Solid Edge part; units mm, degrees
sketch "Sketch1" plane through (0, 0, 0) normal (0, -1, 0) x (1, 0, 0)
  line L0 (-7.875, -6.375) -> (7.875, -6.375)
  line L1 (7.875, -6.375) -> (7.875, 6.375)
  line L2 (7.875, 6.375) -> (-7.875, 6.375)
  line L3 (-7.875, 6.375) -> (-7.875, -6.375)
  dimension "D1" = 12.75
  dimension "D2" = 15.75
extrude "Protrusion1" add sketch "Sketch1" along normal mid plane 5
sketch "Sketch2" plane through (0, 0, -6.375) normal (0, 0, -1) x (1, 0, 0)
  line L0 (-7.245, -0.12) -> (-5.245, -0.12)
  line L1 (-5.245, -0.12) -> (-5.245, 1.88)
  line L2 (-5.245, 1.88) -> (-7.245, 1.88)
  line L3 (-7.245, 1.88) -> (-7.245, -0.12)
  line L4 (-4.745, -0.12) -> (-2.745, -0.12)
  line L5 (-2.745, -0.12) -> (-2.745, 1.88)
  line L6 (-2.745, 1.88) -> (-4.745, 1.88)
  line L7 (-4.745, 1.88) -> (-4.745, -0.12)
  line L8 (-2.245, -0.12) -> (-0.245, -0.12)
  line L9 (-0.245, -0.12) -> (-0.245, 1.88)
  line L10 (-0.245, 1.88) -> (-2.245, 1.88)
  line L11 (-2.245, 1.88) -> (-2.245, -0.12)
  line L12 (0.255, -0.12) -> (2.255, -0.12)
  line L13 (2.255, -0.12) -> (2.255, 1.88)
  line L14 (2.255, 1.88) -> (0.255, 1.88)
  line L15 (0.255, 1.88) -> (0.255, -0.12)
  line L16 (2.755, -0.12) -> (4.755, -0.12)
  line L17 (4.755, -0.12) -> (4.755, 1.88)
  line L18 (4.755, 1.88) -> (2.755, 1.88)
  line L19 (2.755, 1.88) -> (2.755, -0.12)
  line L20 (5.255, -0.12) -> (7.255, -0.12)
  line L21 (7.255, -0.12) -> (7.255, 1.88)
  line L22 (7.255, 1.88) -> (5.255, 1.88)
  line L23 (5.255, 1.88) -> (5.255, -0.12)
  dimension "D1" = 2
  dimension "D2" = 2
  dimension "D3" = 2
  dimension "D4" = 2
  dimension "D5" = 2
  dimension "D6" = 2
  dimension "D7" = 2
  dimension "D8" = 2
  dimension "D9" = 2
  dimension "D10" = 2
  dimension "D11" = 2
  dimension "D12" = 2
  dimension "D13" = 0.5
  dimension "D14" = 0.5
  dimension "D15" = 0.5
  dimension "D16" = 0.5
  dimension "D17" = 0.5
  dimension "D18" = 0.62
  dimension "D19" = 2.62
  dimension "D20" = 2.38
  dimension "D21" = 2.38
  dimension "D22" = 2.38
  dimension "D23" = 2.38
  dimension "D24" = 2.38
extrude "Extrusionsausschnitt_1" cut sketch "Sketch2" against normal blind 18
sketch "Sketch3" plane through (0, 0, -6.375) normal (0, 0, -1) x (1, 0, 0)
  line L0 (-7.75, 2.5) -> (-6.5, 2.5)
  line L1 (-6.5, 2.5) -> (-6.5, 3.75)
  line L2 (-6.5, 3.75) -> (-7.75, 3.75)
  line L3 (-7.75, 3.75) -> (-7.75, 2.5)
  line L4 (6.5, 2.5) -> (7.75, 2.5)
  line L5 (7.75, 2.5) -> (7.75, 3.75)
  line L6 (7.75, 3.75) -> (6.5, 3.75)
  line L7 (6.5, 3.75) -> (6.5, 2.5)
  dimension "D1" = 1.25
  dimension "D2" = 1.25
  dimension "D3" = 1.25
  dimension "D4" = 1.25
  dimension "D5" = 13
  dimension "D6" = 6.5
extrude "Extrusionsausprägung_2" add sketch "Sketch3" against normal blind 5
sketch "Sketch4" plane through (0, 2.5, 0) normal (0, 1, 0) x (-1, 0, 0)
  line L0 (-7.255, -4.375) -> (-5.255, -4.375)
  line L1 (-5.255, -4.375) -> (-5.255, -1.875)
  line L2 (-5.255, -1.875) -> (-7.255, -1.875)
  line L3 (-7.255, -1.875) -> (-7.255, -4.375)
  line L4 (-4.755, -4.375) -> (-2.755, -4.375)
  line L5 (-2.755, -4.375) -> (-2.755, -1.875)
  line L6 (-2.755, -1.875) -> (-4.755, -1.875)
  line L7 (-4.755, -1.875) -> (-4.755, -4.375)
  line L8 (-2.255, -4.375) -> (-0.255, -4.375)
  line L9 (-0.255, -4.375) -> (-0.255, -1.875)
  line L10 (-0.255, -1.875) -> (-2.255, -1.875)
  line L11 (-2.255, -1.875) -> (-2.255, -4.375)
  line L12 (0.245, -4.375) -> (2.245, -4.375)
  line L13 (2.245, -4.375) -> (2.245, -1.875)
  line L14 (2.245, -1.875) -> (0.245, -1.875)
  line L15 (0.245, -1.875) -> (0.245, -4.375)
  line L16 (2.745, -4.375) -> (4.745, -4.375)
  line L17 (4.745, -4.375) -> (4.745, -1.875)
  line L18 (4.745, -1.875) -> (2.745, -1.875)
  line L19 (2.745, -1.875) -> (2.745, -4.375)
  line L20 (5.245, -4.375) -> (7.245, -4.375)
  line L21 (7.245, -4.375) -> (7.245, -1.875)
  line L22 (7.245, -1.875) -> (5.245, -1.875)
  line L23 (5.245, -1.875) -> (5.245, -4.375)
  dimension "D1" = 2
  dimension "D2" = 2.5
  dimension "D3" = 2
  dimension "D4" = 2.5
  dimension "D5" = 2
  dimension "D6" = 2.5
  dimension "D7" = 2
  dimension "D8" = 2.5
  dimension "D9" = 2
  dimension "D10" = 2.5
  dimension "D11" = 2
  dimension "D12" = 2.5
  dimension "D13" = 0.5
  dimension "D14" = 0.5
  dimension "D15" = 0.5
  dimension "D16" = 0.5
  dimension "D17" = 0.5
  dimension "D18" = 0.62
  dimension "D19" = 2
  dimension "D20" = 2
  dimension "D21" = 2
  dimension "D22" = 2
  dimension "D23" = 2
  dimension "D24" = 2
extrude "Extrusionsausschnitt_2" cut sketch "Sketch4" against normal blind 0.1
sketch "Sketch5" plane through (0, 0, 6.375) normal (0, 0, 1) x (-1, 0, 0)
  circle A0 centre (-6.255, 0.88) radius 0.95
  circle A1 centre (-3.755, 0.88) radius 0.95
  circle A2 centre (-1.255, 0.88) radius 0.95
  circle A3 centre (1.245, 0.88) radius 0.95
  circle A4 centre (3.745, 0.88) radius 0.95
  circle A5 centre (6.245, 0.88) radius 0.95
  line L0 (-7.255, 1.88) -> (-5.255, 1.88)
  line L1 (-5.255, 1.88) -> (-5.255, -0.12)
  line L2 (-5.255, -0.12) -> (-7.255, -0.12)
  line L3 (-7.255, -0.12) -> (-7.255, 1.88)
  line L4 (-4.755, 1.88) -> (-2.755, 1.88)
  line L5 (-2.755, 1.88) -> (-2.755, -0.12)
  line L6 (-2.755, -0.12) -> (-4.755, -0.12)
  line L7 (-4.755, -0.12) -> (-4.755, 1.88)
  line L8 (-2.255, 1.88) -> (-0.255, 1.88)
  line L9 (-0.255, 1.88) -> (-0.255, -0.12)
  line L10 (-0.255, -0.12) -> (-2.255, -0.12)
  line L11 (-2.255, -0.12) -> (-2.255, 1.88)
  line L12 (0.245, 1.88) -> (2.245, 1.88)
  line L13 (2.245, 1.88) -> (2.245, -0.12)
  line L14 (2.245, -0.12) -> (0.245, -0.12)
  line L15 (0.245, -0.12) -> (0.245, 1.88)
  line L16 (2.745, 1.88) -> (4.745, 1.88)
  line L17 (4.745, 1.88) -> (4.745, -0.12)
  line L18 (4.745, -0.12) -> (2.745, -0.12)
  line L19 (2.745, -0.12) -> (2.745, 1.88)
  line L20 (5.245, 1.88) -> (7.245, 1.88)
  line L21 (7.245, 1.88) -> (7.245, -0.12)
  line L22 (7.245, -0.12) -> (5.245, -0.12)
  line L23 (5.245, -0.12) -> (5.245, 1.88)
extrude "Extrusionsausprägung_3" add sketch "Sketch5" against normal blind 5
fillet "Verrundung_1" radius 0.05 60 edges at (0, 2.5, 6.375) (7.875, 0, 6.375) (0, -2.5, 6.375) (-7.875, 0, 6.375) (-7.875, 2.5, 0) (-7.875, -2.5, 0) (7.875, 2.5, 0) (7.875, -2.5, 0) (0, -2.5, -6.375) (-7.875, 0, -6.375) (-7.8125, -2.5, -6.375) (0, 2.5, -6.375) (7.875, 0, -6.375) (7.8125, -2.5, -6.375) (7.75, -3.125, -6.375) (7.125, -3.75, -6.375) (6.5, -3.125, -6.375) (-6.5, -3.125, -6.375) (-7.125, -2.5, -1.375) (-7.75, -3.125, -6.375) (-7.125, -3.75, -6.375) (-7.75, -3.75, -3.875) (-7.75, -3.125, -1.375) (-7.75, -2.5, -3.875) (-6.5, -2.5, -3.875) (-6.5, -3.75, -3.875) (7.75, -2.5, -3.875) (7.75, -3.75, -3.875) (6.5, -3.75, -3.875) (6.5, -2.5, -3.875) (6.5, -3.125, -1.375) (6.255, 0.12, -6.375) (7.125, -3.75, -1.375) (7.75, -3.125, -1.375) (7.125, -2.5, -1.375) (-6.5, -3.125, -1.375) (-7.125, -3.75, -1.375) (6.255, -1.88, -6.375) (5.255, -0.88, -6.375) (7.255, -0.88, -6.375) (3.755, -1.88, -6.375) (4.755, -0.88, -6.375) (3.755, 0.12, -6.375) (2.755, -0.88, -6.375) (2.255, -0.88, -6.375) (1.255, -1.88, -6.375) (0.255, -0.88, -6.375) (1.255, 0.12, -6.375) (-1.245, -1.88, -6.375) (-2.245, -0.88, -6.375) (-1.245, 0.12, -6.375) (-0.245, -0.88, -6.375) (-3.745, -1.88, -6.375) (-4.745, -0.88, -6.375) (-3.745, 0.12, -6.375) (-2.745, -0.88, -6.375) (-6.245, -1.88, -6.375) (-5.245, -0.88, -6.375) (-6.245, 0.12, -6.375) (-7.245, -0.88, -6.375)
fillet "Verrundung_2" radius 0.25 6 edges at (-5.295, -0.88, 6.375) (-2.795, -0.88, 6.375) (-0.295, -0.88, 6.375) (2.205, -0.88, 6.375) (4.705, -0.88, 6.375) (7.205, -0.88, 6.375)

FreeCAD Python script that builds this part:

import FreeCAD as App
import Part
import Sketcher
from FreeCAD import Vector


def edges_at(feature, points):
    """Names of the edges that pass closest to the given points."""
    edges = feature.Shape.Edges
    near = lambda p: min(range(len(edges)), key=lambda i: edges[i].distToShape(Part.Vertex(*p))[0])
    return sorted({f"Edge{near(p) + 1}" for p in points})

doc = App.newDocument("Part")
body = doc.addObject("PartDesign::Body", "Body")

# Sketch on XZ plane
sketch1 = body.newObject("Sketcher::SketchObject", "Sketch")
sketch1.AttachmentSupport = (doc.getObject("XZ_Plane"), [""])
sketch1.MapMode = "FlatFace"
sketch1.addGeometry([
    Part.LineSegment(Vector(-7.875, 6.375, 0), Vector(-7.875, -6.375, 0)),
    Part.LineSegment(Vector(-7.875, -6.375, 0), Vector(7.875, -6.375, 0)),
    Part.LineSegment(Vector(7.875, -6.375, 0), Vector(7.875, 6.375, 0)),
    Part.LineSegment(Vector(7.875, 6.375, 0), Vector(-7.875, 6.375, 0)),
], False)
sketch1.addConstraint([
    Sketcher.Constraint("Coincident", 0, 2, 1, 1),
    Sketcher.Constraint("Coincident", 1, 2, 2, 1),
    Sketcher.Constraint("Coincident", 2, 2, 3, 1),
    Sketcher.Constraint("Coincident", 3, 2, 0, 1),
    Sketcher.Constraint("Vertical", 0),
    Sketcher.Constraint("Horizontal", 1),
    Sketcher.Constraint("Vertical", 2),
    Sketcher.Constraint("Horizontal", 3),
    Sketcher.Constraint("Symmetric", 0, 2, 2, 2, -1, 1),
    Sketcher.Constraint("DistanceX", 0, 2, -1, 1, 7.875),
    Sketcher.Constraint("DistanceY", 0, 2, 0, 1, 12.75),
])
pad1 = body.newObject("PartDesign::Pad", "Pad")
pad1.Profile = sketch1
pad1.Length = 5
pad1.Midplane = True

# Sketch on XY plane
sketch2 = body.newObject("Sketcher::SketchObject", "Sketch001")
sketch2.AttachmentSupport = (doc.getObject("XY_Plane"), [""])
sketch2.MapMode = "FlatFace"
sketch2.AttachmentOffset = App.Placement(Vector(0, 0, -6.375), App.Rotation())
sketch2.addGeometry([
    Part.LineSegment(Vector(-7.245, -1.88, 0), Vector(-7.245, 0.12, 0)),  # 0
    Part.LineSegment(Vector(-7.245, 0.12, 0), Vector(-5.245, 0.12, 0)),  # 1
    Part.LineSegment(Vector(-5.245, 0.12, 0), Vector(-5.245, -1.88, 0)),  # 2
    Part.LineSegment(Vector(-5.245, -1.88, 0), Vector(-7.245, -1.88, 0)),  # 3
    Part.LineSegment(Vector(-4.745, -1.88, 0), Vector(-4.745, 0.12, 0)),  # 4
    Part.LineSegment(Vector(-4.745, 0.12, 0), Vector(-2.745, 0.12, 0)),  # 5
    Part.LineSegment(Vector(-2.745, 0.12, 0), Vector(-2.745, -1.88, 0)),  # 6
    Part.LineSegment(Vector(-2.745, -1.88, 0), Vector(-4.745, -1.88, 0)),  # 7
    Part.LineSegment(Vector(-2.245, -1.88, 0), Vector(-2.245, 0.12, 0)),  # 8
    Part.LineSegment(Vector(-2.245, 0.12, 0), Vector(-0.245, 0.12, 0)),  # 9
    Part.LineSegment(Vector(-0.245, 0.12, 0), Vector(-0.245, -1.88, 0)),  # 10
    Part.LineSegment(Vector(-0.245, -1.88, 0), Vector(-2.245, -1.88, 0)),  # 11
    Part.LineSegment(Vector(0.255, -1.88, 0), Vector(0.255, 0.12, 0)),  # 12
    Part.LineSegment(Vector(0.255, 0.12, 0), Vector(2.255, 0.12, 0)),  # 13
    Part.LineSegment(Vector(2.255, 0.12, 0), Vector(2.255, -1.88, 0)),  # 14
    Part.LineSegment(Vector(2.255, -1.88, 0), Vector(0.255, -1.88, 0)),  # 15
    Part.LineSegment(Vector(2.755, -1.88, 0), Vector(2.755, 0.12, 0)),  # 16
    Part.LineSegment(Vector(2.755, 0.12, 0), Vector(4.755, 0.12, 0)),  # 17
    Part.LineSegment(Vector(4.755, 0.12, 0), Vector(4.755, -1.88, 0)),  # 18
    Part.LineSegment(Vector(4.755, -1.88, 0), Vector(2.755, -1.88, 0)),  # 19
    Part.LineSegment(Vector(5.255, -1.88, 0), Vector(5.255, 0.12, 0)),  # 20
    Part.LineSegment(Vector(5.255, 0.12, 0), Vector(7.255, 0.12, 0)),  # 21
    Part.LineSegment(Vector(7.255, 0.12, 0), Vector(7.255, -1.88, 0)),  # 22
    Part.LineSegment(Vector(7.255, -1.88, 0), Vector(5.255, -1.88, 0)),  # 23
], False)
sketch2.addConstraint([
    Sketcher.Constraint("Coincident", 0, 2, 1, 1),
    Sketcher.Constraint("Coincident", 1, 2, 2, 1),
    Sketcher.Constraint("Coincident", 2, 2, 3, 1),
    Sketcher.Constraint("Coincident", 3, 2, 0, 1),
    Sketcher.Constraint("Coincident", 4, 2, 5, 1),
    Sketcher.Constraint("Coincident", 5, 2, 6, 1),
    Sketcher.Constraint("Coincident", 6, 2, 7, 1),
    Sketcher.Constraint("Coincident", 7, 2, 4, 1),
    Sketcher.Constraint("Coincident", 8, 2, 9, 1),
    Sketcher.Constraint("Coincident", 9, 2, 10, 1),
    Sketcher.Constraint("Coincident", 10, 2, 11, 1),
    Sketcher.Constraint("Coincident", 11, 2, 8, 1),
    Sketcher.Constraint("Coincident", 12, 2, 13, 1),
    Sketcher.Constraint("Coincident", 13, 2, 14, 1),
    Sketcher.Constraint("Coincident", 14, 2, 15, 1),
    Sketcher.Constraint("Coincident", 15, 2, 12, 1),
    Sketcher.Constraint("Coincident", 16, 2, 17, 1),
    Sketcher.Constraint("Coincident", 17, 2, 18, 1),
    Sketcher.Constraint("Coincident", 18, 2, 19, 1),
    Sketcher.Constraint("Coincident", 19, 2, 16, 1),
    Sketcher.Constraint("Coincident", 20, 2, 21, 1),
    Sketcher.Constraint("Coincident", 21, 2, 22, 1),
    Sketcher.Constraint("Coincident", 22, 2, 23, 1),
    Sketcher.Constraint("Coincident", 23, 2, 20, 1),
    Sketcher.Constraint("Vertical", 0),
    Sketcher.Constraint("Horizontal", 1),
    Sketcher.Constraint("Vertical", 2),
    Sketcher.Constraint("Horizontal", 3),
    Sketcher.Constraint("Vertical", 4),
    Sketcher.Constraint("Horizontal", 5),
    Sketcher.Constraint("Vertical", 6),
    Sketcher.Constraint("Horizontal", 7),
    Sketcher.Constraint("Vertical", 8),
    Sketcher.Constraint("Horizontal", 9),
    Sketcher.Constraint("Vertical", 10),
    Sketcher.Constraint("Horizontal", 11),
    Sketcher.Constraint("Vertical", 12),
    Sketcher.Constraint("Horizontal", 13),
    Sketcher.Constraint("Vertical", 14),
    Sketcher.Constraint("Horizontal", 15),
    Sketcher.Constraint("Vertical", 16),
    Sketcher.Constraint("Horizontal", 17),
    Sketcher.Constraint("Vertical", 18),
    Sketcher.Constraint("Horizontal", 19),
    Sketcher.Constraint("Vertical", 20),
    Sketcher.Constraint("Horizontal", 21),
    Sketcher.Constraint("Vertical", 22),
    Sketcher.Constraint("Horizontal", 23),
    Sketcher.Constraint("Horizontal", 1, 2, 4, 2),
    Sketcher.Constraint("Horizontal", 3, 2, 6, 2),
    Sketcher.Constraint("Horizontal", 5, 2, 8, 2),
    Sketcher.Constraint("Horizontal", 7, 2, 10, 2),
    Sketcher.Constraint("Horizontal", 9, 2, 12, 2),
    Sketcher.Constraint("Horizontal", 11, 2, 14, 2),
    Sketcher.Constraint("Horizontal", 13, 2, 16, 2),
    Sketcher.Constraint("Horizontal", 15, 2, 18, 2),
    Sketcher.Constraint("Horizontal", 17, 2, 20, 2),
    Sketcher.Constraint("Horizontal", 19, 2, 22, 2),
    Sketcher.Constraint("Equal", 3, 5),
    Sketcher.Constraint("Equal", 7, 9),
    Sketcher.Constraint("Equal", 11, 13),
    Sketcher.Constraint("Equal", 15, 17),
    Sketcher.Constraint("Equal", 19, 21),
    Sketcher.Constraint("Equal", 23, 0),
    Sketcher.Constraint("DistanceX", 1, 1, 1, 2, 2.0),
    Sketcher.Constraint("DistanceX", 1, 2, -1, 1, 5.245),
    Sketcher.Constraint("DistanceX", 1, 2, 8, 2, 3.0),
    Sketcher.Constraint("DistanceX", 5, 2, 12, 2, 3.0),
    Sketcher.Constraint("DistanceX", 9, 2, 16, 2, 3.0),
    Sketcher.Constraint("DistanceX", 13, 2, 20, 2, 3.0),
    Sketcher.Constraint("DistanceX", 1, 2, 4, 2, 0.5),
    Sketcher.Constraint("DistanceY", -1, 1, 0, 2, 0.12),
])
pocket1 = body.newObject("PartDesign::Pocket", "Pocket")
pocket1.Profile = sketch2
pocket1.Length = 18
pocket1.Reversed = True

# Sketch on XY plane
sketch3 = body.newObject("Sketcher::SketchObject", "Sketch002")
sketch3.AttachmentSupport = (doc.getObject("XY_Plane"), [""])
sketch3.MapMode = "FlatFace"
sketch3.AttachmentOffset = App.Placement(Vector(0, 0, -6.375), App.Rotation())
sketch3.addGeometry([
    Part.LineSegment(Vector(-7.75, -3.75, 0), Vector(-7.75, -2.5, 0)),  # 0
    Part.LineSegment(Vector(-7.75, -2.5, 0), Vector(-6.5, -2.5, 0)),  # 1
    Part.LineSegment(Vector(-6.5, -2.5, 0), Vector(-6.5, -3.75, 0)),  # 2
    Part.LineSegment(Vector(-6.5, -3.75, 0), Vector(-7.75, -3.75, 0)),  # 3
    Part.LineSegment(Vector(6.5, -3.75, 0), Vector(6.5, -2.5, 0)),  # 4
    Part.LineSegment(Vector(6.5, -2.5, 0), Vector(7.75, -2.5, 0)),  # 5
    Part.LineSegment(Vector(7.75, -2.5, 0), Vector(7.75, -3.75, 0)),  # 6
    Part.LineSegment(Vector(7.75, -3.75, 0), Vector(6.5, -3.75, 0)),  # 7
], False)
sketch3.addConstraint([
    Sketcher.Constraint("Coincident", 0, 2, 1, 1),
    Sketcher.Constraint("Coincident", 1, 2, 2, 1),
    Sketcher.Constraint("Coincident", 2, 2, 3, 1),
    Sketcher.Constraint("Coincident", 3, 2, 0, 1),
    Sketcher.Constraint("Coincident", 4, 2, 5, 1),
    Sketcher.Constraint("Coincident", 5, 2, 6, 1),
    Sketcher.Constraint("Coincident", 6, 2, 7, 1),
    Sketcher.Constraint("Coincident", 7, 2, 4, 1),
    Sketcher.Constraint("Vertical", 0),
    Sketcher.Constraint("Horizontal", 1),
    Sketcher.Constraint("Vertical", 2),
    Sketcher.Constraint("Horizontal", 3),
    Sketcher.Constraint("Vertical", 4),
    Sketcher.Constraint("Horizontal", 5),
    Sketcher.Constraint("Vertical", 6),
    Sketcher.Constraint("Horizontal", 7),
    Sketcher.Constraint("Symmetric", 1, 2, 4, 2, -2),
    Sketcher.Constraint("Symmetric", 3, 2, 6, 2, -2),
    Sketcher.Constraint("Equal", 7, 0),
    Sketcher.Constraint("DistanceX", 1, 2, -1, 1, 6.5),
    Sketcher.Constraint("DistanceX", 0, 2, -1, 1, 7.75),
    Sketcher.Constraint("DistanceY", 0, 2, -1, 1, 2.5),
])
pad2 = body.newObject("PartDesign::Pad", "Pad001")
pad2.Profile = sketch3
pad2.Length = 5

# Sketch on XZ plane
sketch4 = body.newObject("Sketcher::SketchObject", "Sketch003")
sketch4.AttachmentSupport = (doc.getObject("XZ_Plane"), [""])
sketch4.MapMode = "FlatFace"
sketch4.AttachmentOffset = App.Placement(Vector(0, 0, -2.5), App.Rotation())
sketch4.addGeometry([
    Part.LineSegment(Vector(7.255, -1.875, 0), Vector(7.255, -4.375, 0)),  # 0
    Part.LineSegment(Vector(7.255, -4.375, 0), Vector(5.255, -4.375, 0)),  # 1
    Part.LineSegment(Vector(5.255, -4.375, 0), Vector(5.255, -1.875, 0)),  # 2
    Part.LineSegment(Vector(5.255, -1.875, 0), Vector(7.255, -1.875, 0)),  # 3
    Part.LineSegment(Vector(4.755, -1.875, 0), Vector(4.755, -4.375, 0)),  # 4
    Part.LineSegment(Vector(4.755, -4.375, 0), Vector(2.755, -4.375, 0)),  # 5
    Part.LineSegment(Vector(2.755, -4.375, 0), Vector(2.755, -1.875, 0)),  # 6
    Part.LineSegment(Vector(2.755, -1.875, 0), Vector(4.755, -1.875, 0)),  # 7
    Part.LineSegment(Vector(2.255, -1.875, 0), Vector(2.255, -4.375, 0)),  # 8
    Part.LineSegment(Vector(2.255, -4.375, 0), Vector(0.255, -4.375, 0)),  # 9
    Part.LineSegment(Vector(0.255, -4.375, 0), Vector(0.255, -1.875, 0)),  # 10
    Part.LineSegment(Vector(0.255, -1.875, 0), Vector(2.255, -1.875, 0)),  # 11
    Part.LineSegment(Vector(-0.245, -1.875, 0), Vector(-0.245, -4.375, 0)),  # 12
    Part.LineSegment(Vector(-0.245, -4.375, 0), Vector(-2.245, -4.375, 0)),  # 13
    Part.LineSegment(Vector(-2.245, -4.375, 0), Vector(-2.245, -1.875, 0)),  # 14
    Part.LineSegment(Vector(-2.245, -1.875, 0), Vector(-0.245, -1.875, 0)),  # 15
    Part.LineSegment(Vector(-2.745, -1.875, 0), Vector(-2.745, -4.375, 0)),  # 16
    Part.LineSegment(Vector(-2.745, -4.375, 0), Vector(-4.745, -4.375, 0)),  # 17
    Part.LineSegment(Vector(-4.745, -4.375, 0), Vector(-4.745, -1.875, 0)),  # 18
    Part.LineSegment(Vector(-4.745, -1.875, 0), Vector(-2.745, -1.875, 0)),  # 19
    Part.LineSegment(Vector(-5.245, -1.875, 0), Vector(-5.245, -4.375, 0)),  # 20
    Part.LineSegment(Vector(-5.245, -4.375, 0), Vector(-7.245, -4.375, 0)),  # 21
    Part.LineSegment(Vector(-7.245, -4.375, 0), Vector(-7.245, -1.875, 0)),  # 22
    Part.LineSegment(Vector(-7.245, -1.875, 0), Vector(-5.245, -1.875, 0)),  # 23
], False)
sketch4.addConstraint([
    Sketcher.Constraint("Coincident", 0, 2, 1, 1),
    Sketcher.Constraint("Coincident", 1, 2, 2, 1),
    Sketcher.Constraint("Coincident", 2, 2, 3, 1),
    Sketcher.Constraint("Coincident", 3, 2, 0, 1),
    Sketcher.Constraint("Coincident", 4, 2, 5, 1),
    Sketcher.Constraint("Coincident", 5, 2, 6, 1),
    Sketcher.Constraint("Coincident", 6, 2, 7, 1),
    Sketcher.Constraint("Coincident", 7, 2, 4, 1),
    Sketcher.Constraint("Coincident", 8, 2, 9, 1),
    Sketcher.Constraint("Coincident", 9, 2, 10, 1),
    Sketcher.Constraint("Coincident", 10, 2, 11, 1),
    Sketcher.Constraint("Coincident", 11, 2, 8, 1),
    Sketcher.Constraint("Coincident", 12, 2, 13, 1),
    Sketcher.Constraint("Coincident", 13, 2, 14, 1),
    Sketcher.Constraint("Coincident", 14, 2, 15, 1),
    Sketcher.Constraint("Coincident", 15, 2, 12, 1),
    Sketcher.Constraint("Coincident", 16, 2, 17, 1),
    Sketcher.Constraint("Coincident", 17, 2, 18, 1),
    Sketcher.Constraint("Coincident", 18, 2, 19, 1),
    Sketcher.Constraint("Coincident", 19, 2, 16, 1),
    Sketcher.Constraint("Coincident", 20, 2, 21, 1),
    Sketcher.Constraint("Coincident", 21, 2, 22, 1),
    Sketcher.Constraint("Coincident", 22, 2, 23, 1),
    Sketcher.Constraint("Coincident", 23, 2, 20, 1),
    Sketcher.Constraint("Vertical", 0),
    Sketcher.Constraint("Horizontal", 1),
    Sketcher.Constraint("Vertical", 2),
    Sketcher.Constraint("Horizontal", 3),
    Sketcher.Constraint("Vertical", 4),
    Sketcher.Constraint("Horizontal", 5),
    Sketcher.Constraint("Vertical", 6),
    Sketcher.Constraint("Horizontal", 7),
    Sketcher.Constraint("Vertical", 8),
    Sketcher.Constraint("Horizontal", 9),
    Sketcher.Constraint("Vertical", 10),
    Sketcher.Constraint("Horizontal", 11),
    Sketcher.Constraint("Vertical", 12),
    Sketcher.Constraint("Horizontal", 13),
    Sketcher.Constraint("Vertical", 14),
    Sketcher.Constraint("Horizontal", 15),
    Sketcher.Constraint("Vertical", 16),
    Sketcher.Constraint("Horizontal", 17),
    Sketcher.Constraint("Vertical", 18),
    Sketcher.Constraint("Horizontal", 19),
    Sketcher.Constraint("Vertical", 20),
    Sketcher.Constraint("Horizontal", 21),
    Sketcher.Constraint("Vertical", 22),
    Sketcher.Constraint("Horizontal", 23),
    Sketcher.Constraint("Horizontal", 1, 2, 4, 2),
    Sketcher.Constraint("Horizontal", 3, 2, 6, 2),
    Sketcher.Constraint("Horizontal", 5, 2, 8, 2),
    Sketcher.Constraint("Horizontal", 7, 2, 10, 2),
    Sketcher.Constraint("Horizontal", 9, 2, 12, 2),
    Sketcher.Constraint("Horizontal", 11, 2, 14, 2),
    Sketcher.Constraint("Horizontal", 13, 2, 16, 2),
    Sketcher.Constraint("Horizontal", 15, 2, 18, 2),
    Sketcher.Constraint("Horizontal", 17, 2, 20, 2),
    Sketcher.Constraint("Horizontal", 19, 2, 22, 2),
    Sketcher.Constraint("Equal", 3, 5),
    Sketcher.Constraint("Equal", 7, 9),
    Sketcher.Constraint("Equal", 11, 13),
    Sketcher.Constraint("Equal", 15, 17),
    Sketcher.Constraint("Equal", 19, 21),
    Sketcher.Constraint("DistanceX", 1, 2, 1, 1, 2.0),
    Sketcher.Constraint("DistanceY", 0, 2, 0, 1, 2.5),
    Sketcher.Constraint("DistanceX", -1, 1, 1, 2, 5.255),
    Sketcher.Constraint("DistanceX", 8, 2, 1, 2, 3.0),
    Sketcher.Constraint("DistanceX", 12, 2, 5, 2, 3.0),
    Sketcher.Constraint("DistanceX", 16, 2, 9, 2, 3.0),
    Sketcher.Constraint("DistanceX", 20, 2, 13, 2, 3.0),
    Sketcher.Constraint("DistanceX", 4, 2, 1, 2, 0.5),
    Sketcher.Constraint("DistanceY", 0, 2, -1, 1, 4.375),
])
pocket2 = body.newObject("PartDesign::Pocket", "Pocket001")
pocket2.Profile = sketch4
pocket2.Length = 0.1
pocket2.Reversed = True

# Sketch on XY plane
sketch5 = body.newObject("Sketcher::SketchObject", "Sketch004")
sketch5.AttachmentSupport = (doc.getObject("XY_Plane"), [""])
sketch5.MapMode = "FlatFace"
sketch5.AttachmentOffset = App.Placement(Vector(0, 0, 6.375), App.Rotation())
sketch5.addGeometry([
    Part.LineSegment(Vector(5.255, -1.88, 0), Vector(7.255, -1.88, 0)),  # 0
    Part.LineSegment(Vector(7.255, -1.88, 0), Vector(7.255, 0.12, 0)),  # 1
    Part.LineSegment(Vector(7.255, 0.12, 0), Vector(5.255, 0.12, 0)),  # 2
    Part.LineSegment(Vector(5.255, 0.12, 0), Vector(5.255, -1.88, 0)),  # 3
    Part.Circle(Vector(6.255, -0.88, 0), Vector(0, 0, 1), 0.95),  # 4
    Part.LineSegment(Vector(2.755, -1.88, 0), Vector(4.755, -1.88, 0)),  # 5
    Part.LineSegment(Vector(4.755, -1.88, 0), Vector(4.755, 0.12, 0)),  # 6
    Part.LineSegment(Vector(4.755, 0.12, 0), Vector(2.755, 0.12, 0)),  # 7
    Part.LineSegment(Vector(2.755, 0.12, 0), Vector(2.755, -1.88, 0)),  # 8
    Part.Circle(Vector(3.755, -0.88, 0), Vector(0, 0, 1), 0.95),  # 9
    Part.LineSegment(Vector(0.255, -1.88, 0), Vector(2.255, -1.88, 0)),  # 10
    Part.LineSegment(Vector(2.255, -1.88, 0), Vector(2.255, 0.12, 0)),  # 11
    Part.LineSegment(Vector(2.255, 0.12, 0), Vector(0.255, 0.12, 0)),  # 12
    Part.LineSegment(Vector(0.255, 0.12, 0), Vector(0.255, -1.88, 0)),  # 13
    Part.Circle(Vector(1.255, -0.88, 0), Vector(0, 0, 1), 0.95),  # 14
    Part.LineSegment(Vector(-2.245, -1.88, 0), Vector(-0.245, -1.88, 0)),  # 15
    Part.LineSegment(Vector(-0.245, -1.88, 0), Vector(-0.245, 0.12, 0)),  # 16
    Part.LineSegment(Vector(-0.245, 0.12, 0), Vector(-2.245, 0.12, 0)),  # 17
    Part.LineSegment(Vector(-2.245, 0.12, 0), Vector(-2.245, -1.88, 0)),  # 18
    Part.Circle(Vector(-1.245, -0.88, 0), Vector(0, 0, 1), 0.95),  # 19
    Part.LineSegment(Vector(-4.745, -1.88, 0), Vector(-2.745, -1.88, 0)),  # 20
    Part.LineSegment(Vector(-2.745, -1.88, 0), Vector(-2.745, 0.12, 0)),  # 21
    Part.LineSegment(Vector(-2.745, 0.12, 0), Vector(-4.745, 0.12, 0)),  # 22
    Part.LineSegment(Vector(-4.745, 0.12, 0), Vector(-4.745, -1.88, 0)),  # 23
    Part.Circle(Vector(-3.745, -0.88, 0), Vector(0, 0, 1), 0.95),  # 24
    Part.LineSegment(Vector(-7.245, -1.88, 0), Vector(-5.245, -1.88, 0)),  # 25
    Part.LineSegment(Vector(-5.245, -1.88, 0), Vector(-5.245, 0.12, 0)),  # 26
    Part.LineSegment(Vector(-5.245, 0.12, 0), Vector(-7.245, 0.12, 0)),  # 27
    Part.LineSegment(Vector(-7.245, 0.12, 0), Vector(-7.245, -1.88, 0)),  # 28
    Part.Circle(Vector(-6.245, -0.88, 0), Vector(0, 0, 1), 0.95),  # 29
], False)
sketch5.addConstraint([
    Sketcher.Constraint("Coincident", 0, 2, 1, 1),
    Sketcher.Constraint("Coincident", 1, 2, 2, 1),
    Sketcher.Constraint("Coincident", 2, 2, 3, 1),
    Sketcher.Constraint("Coincident", 3, 2, 0, 1),
    Sketcher.Constraint("Coincident", 5, 2, 6, 1),
    Sketcher.Constraint("Coincident", 6, 2, 7, 1),
    Sketcher.Constraint("Coincident", 7, 2, 8, 1),
    Sketcher.Constraint("Coincident", 8, 2, 5, 1),
    Sketcher.Constraint("Coincident", 10, 2, 11, 1),
    Sketcher.Constraint("Coincident", 11, 2, 12, 1),
    Sketcher.Constraint("Coincident", 12, 2, 13, 1),
    Sketcher.Constraint("Coincident", 13, 2, 10, 1),
    Sketcher.Constraint("Coincident", 15, 2, 16, 1),
    Sketcher.Constraint("Coincident", 16, 2, 17, 1),
    Sketcher.Constraint("Coincident", 17, 2, 18, 1),
    Sketcher.Constraint("Coincident", 18, 2, 15, 1),
    Sketcher.Constraint("Coincident", 20, 2, 21, 1),
    Sketcher.Constraint("Coincident", 21, 2, 22, 1),
    Sketcher.Constraint("Coincident", 22, 2, 23, 1),
    Sketcher.Constraint("Coincident", 23, 2, 20, 1),
    Sketcher.Constraint("Coincident", 25, 2, 26, 1),
    Sketcher.Constraint("Coincident", 26, 2, 27, 1),
    Sketcher.Constraint("Coincident", 27, 2, 28, 1),
    Sketcher.Constraint("Coincident", 28, 2, 25, 1),
    Sketcher.Constraint("Horizontal", 0),
    Sketcher.Constraint("Vertical", 1),
    Sketcher.Constraint("Horizontal", 2),
    Sketcher.Constraint("Vertical", 3),
    Sketcher.Constraint("Horizontal", 5),
    Sketcher.Constraint("Vertical", 6),
    Sketcher.Constraint("Horizontal", 7),
    Sketcher.Constraint("Vertical", 8),
    Sketcher.Constraint("Horizontal", 10),
    Sketcher.Constraint("Vertical", 11),
    Sketcher.Constraint("Horizontal", 12),
    Sketcher.Constraint("Vertical", 13),
    Sketcher.Constraint("Horizontal", 15),
    Sketcher.Constraint("Vertical", 16),
    Sketcher.Constraint("Horizontal", 17),
    Sketcher.Constraint("Vertical", 18),
    Sketcher.Constraint("Horizontal", 20),
    Sketcher.Constraint("Vertical", 21),
    Sketcher.Constraint("Horizontal", 22),
    Sketcher.Constraint("Vertical", 23),
    Sketcher.Constraint("Horizontal", 25),
    Sketcher.Constraint("Vertical", 26),
    Sketcher.Constraint("Horizontal", 27),
    Sketcher.Constraint("Vertical", 28),
    Sketcher.Constraint("Equal", 4, 9),
    Sketcher.Constraint("Equal", 9, 14),
    Sketcher.Constraint("Equal", 14, 19),
    Sketcher.Constraint("Equal", 19, 24),
    Sketcher.Constraint("Equal", 24, 29),
    Sketcher.Constraint("Horizontal", 4, 3, 9, 3),
    Sketcher.Constraint("Horizontal", 9, 3, 14, 3),
    Sketcher.Constraint("Horizontal", 14, 3, 19, 3),
    Sketcher.Constraint("Horizontal", 19, 3, 24, 3),
    Sketcher.Constraint("Horizontal", 24, 3, 29, 3),
    Sketcher.Constraint("Horizontal", 3, 2, 5, 2),
    Sketcher.Constraint("Horizontal", 2, 2, 6, 2),
    Sketcher.Constraint("Horizontal", 8, 2, 10, 2),
    Sketcher.Constraint("Horizontal", 7, 2, 11, 2),
    Sketcher.Constraint("Horizontal", 13, 2, 15, 2),
    Sketcher.Constraint("Horizontal", 12, 2, 16, 2),
    Sketcher.Constraint("Horizontal", 18, 2, 20, 2),
    Sketcher.Constraint("Horizontal", 17, 2, 21, 2),
    Sketcher.Constraint("Horizontal", 23, 2, 25, 2),
    Sketcher.Constraint("Horizontal", 22, 2, 26, 2),
    Sketcher.Constraint("Equal", 2, 5),
    Sketcher.Constraint("Equal", 7, 10),
    Sketcher.Constraint("Equal", 12, 15),
    Sketcher.Constraint("Equal", 17, 20),
    Sketcher.Constraint("Equal", 22, 25),
    Sketcher.Constraint("Equal", 27, 1),
    Sketcher.Constraint("Diameter", 4, 1.9),
    Sketcher.Constraint("DistanceX", 0, 1, 0, 2, 2.0),
    Sketcher.Constraint("DistanceX", 14, 3, 4, 3, 5.0),
    Sketcher.Constraint("DistanceX", 19, 3, 9, 3, 5.0),
    Sketcher.Constraint("DistanceX", 24, 3, 14, 3, 5.0),
    Sketcher.Constraint("DistanceX", 29, 3, 19, 3, 5.0),
    Sketcher.Constraint("DistanceX", 4, 3, 0, 2, 1.0),
    Sketcher.Constraint("DistanceY", 0, 2, 4, 3, 1.0),
    Sketcher.Constraint("DistanceX", 9, 3, 5, 2, 1.0),
    Sketcher.Constraint("DistanceX", 14, 3, 10, 2, 1.0),
    Sketcher.Constraint("DistanceX", 19, 3, 15, 2, 1.0),
    Sketcher.Constraint("DistanceX", 24, 3, 20, 2, 1.0),
    Sketcher.Constraint("DistanceX", 29, 3, 25, 2, 1.0),
    Sketcher.Constraint("DistanceX", 9, 3, 4, 3, 2.5),
    Sketcher.Constraint("DistanceY", 4, 3, -1, 1, 0.88),
    Sketcher.Constraint("DistanceX", -1, 1, 4, 3, 6.255),
])
pad3 = body.newObject("PartDesign::Pad", "Pad002")
pad3.Profile = sketch5
pad3.Length = 5
pad3.Reversed = True
doc.recompute()

fillet = body.newObject("PartDesign::Fillet", "Fillet")
fillet.Base = (pad3, edges_at(pad3, [
    (0, 2.5, 6.375),
    (7.875, 0, 6.375),
    (0, -2.5, 6.375),
    (-7.875, 0, 6.375),
    (-7.875, 2.5, 0),
    (-7.875, -2.5, 0),
    (7.875, 2.5, 0),
    (7.875, -2.5, 0),
    (0, -2.5, -6.375),
    (-7.875, 0, -6.375),
    (-7.812, -2.5, -6.375),
    (0, 2.5, -6.375),
    (7.875, 0, -6.375),
    (7.812, -2.5, -6.375),
    (7.75, -3.125, -6.375),
    (7.125, -3.75, -6.375),
    (6.5, -3.125, -6.375),
    (-6.5, -3.125, -6.375),
    (-7.125, -2.5, -1.375),
    (-7.75, -3.125, -6.375),
    (-7.125, -3.75, -6.375),
    (-7.75, -3.75, -3.875),
    (-7.75, -3.125, -1.375),
    (-7.75, -2.5, -3.875),
    (-6.5, -2.5, -3.875),
    (-6.5, -3.75, -3.875),
    (7.75, -2.5, -3.875),
    (7.75, -3.75, -3.875),
    (6.5, -3.75, -3.875),
    (6.5, -2.5, -3.875),
    (6.5, -3.125, -1.375),
    (6.255, 0.12, -6.375),
    (7.125, -3.75, -1.375),
    (7.75, -3.125, -1.375),
    (7.125, -2.5, -1.375),
    (-6.5, -3.125, -1.375),
    (-7.125, -3.75, -1.375),
    (6.255, -1.88, -6.375),
    (5.255, -0.88, -6.375),
    (7.255, -0.88, -6.375),
    (3.755, -1.88, -6.375),
    (4.755, -0.88, -6.375),
    (3.755, 0.12, -6.375),
    (2.755, -0.88, -6.375),
    (2.255, -0.88, -6.375),
    (1.255, -1.88, -6.375),
    (0.255, -0.88, -6.375),
    (1.255, 0.12, -6.375),
    (-1.245, -1.88, -6.375),
    (-2.245, -0.88, -6.375),
    (-1.245, 0.12, -6.375),
    (-0.245, -0.88, -6.375),
    (-3.745, -1.88, -6.375),
    (-4.745, -0.88, -6.375),
    (-3.745, 0.12, -6.375),
    (-2.745, -0.88, -6.375),
    (-6.245, -1.88, -6.375),
    (-5.245, -0.88, -6.375),
    (-6.245, 0.12, -6.375),
    (-7.245, -0.88, -6.375),
]))
fillet.Radius = 0.05
doc.recompute()

fillet2 = body.newObject("PartDesign::Fillet", "Fillet001")
fillet2.Base = (fillet, edges_at(fillet, [
    (-5.295, -0.88, 6.375),
    (-2.795, -0.88, 6.375),
    (-0.295, -0.88, 6.375),
    (2.205, -0.88, 6.375),
    (4.705, -0.88, 6.375),
    (7.205, -0.88, 6.375),
]))
fillet2.Radius = 0.25

doc.recompute()
